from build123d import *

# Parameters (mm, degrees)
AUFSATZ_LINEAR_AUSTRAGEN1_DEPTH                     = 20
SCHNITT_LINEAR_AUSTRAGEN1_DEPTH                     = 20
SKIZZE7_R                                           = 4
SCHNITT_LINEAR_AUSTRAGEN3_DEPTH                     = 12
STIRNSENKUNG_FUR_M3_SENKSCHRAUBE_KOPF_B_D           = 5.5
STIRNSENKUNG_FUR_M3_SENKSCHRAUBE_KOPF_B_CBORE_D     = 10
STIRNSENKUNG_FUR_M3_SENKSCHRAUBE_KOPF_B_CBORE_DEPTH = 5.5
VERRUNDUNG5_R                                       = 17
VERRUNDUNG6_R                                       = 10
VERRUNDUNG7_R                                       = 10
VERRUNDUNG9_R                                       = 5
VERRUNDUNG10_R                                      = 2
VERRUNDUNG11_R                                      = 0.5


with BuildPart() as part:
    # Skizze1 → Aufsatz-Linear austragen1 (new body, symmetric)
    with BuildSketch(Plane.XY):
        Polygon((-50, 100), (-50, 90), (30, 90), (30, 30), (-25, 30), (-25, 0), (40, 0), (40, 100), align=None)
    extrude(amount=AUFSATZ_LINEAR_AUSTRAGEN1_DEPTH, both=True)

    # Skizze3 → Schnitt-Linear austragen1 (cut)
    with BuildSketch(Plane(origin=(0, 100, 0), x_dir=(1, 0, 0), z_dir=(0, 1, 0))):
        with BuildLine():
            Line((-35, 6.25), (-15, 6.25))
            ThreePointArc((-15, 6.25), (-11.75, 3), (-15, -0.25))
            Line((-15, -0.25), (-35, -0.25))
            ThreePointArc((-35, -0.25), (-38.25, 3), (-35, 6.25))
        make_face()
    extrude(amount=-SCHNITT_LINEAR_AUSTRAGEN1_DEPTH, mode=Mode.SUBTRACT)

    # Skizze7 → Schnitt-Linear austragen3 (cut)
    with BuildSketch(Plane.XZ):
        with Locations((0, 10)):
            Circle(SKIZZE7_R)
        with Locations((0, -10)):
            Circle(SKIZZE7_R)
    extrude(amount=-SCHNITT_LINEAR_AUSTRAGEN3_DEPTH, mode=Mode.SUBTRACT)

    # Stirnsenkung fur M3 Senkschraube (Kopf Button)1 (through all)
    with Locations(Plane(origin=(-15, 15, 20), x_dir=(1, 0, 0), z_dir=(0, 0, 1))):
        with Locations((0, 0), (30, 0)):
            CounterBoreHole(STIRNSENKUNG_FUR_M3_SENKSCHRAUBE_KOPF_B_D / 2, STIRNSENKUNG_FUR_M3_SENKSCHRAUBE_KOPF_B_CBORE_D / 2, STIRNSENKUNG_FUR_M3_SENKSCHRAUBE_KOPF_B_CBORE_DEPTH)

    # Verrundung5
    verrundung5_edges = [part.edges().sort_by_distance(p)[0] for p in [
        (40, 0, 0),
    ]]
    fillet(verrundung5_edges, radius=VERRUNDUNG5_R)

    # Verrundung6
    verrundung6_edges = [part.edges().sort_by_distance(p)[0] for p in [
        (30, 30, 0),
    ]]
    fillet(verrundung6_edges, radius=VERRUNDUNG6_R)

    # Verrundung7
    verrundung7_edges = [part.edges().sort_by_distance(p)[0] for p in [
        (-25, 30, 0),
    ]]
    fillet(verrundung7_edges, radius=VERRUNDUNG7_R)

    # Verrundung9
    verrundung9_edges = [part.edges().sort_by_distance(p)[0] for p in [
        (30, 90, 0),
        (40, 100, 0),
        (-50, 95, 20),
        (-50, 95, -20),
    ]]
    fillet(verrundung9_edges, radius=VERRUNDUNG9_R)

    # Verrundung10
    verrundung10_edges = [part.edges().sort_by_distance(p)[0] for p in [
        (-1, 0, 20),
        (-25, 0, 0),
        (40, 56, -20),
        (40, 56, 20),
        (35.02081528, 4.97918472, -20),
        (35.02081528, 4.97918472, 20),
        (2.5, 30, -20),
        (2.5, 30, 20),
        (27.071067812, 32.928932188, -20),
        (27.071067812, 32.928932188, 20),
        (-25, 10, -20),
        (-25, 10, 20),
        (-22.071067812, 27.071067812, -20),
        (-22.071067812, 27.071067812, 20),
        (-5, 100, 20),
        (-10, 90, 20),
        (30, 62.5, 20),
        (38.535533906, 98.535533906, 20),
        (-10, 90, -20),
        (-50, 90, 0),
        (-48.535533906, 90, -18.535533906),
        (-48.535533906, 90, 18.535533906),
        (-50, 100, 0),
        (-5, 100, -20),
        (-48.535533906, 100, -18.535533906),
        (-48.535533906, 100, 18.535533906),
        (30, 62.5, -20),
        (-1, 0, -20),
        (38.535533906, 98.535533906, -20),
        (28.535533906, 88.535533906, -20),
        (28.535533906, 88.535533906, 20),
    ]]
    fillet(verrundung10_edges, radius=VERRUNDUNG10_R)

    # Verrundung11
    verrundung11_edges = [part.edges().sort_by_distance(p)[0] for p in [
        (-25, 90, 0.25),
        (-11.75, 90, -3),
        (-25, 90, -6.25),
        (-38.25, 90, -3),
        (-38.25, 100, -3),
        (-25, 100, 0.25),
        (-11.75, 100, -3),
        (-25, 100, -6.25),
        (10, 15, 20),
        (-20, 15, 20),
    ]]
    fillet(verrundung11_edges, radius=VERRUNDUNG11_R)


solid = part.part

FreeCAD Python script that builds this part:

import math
import FreeCAD as App
import Part
import Sketcher

V = App.Vector
Q = App.Units.Quantity


def edges_at(feature, points):
    """Names of the edges that pass closest to the given points."""
    edges = feature.Shape.Edges
    near = lambda p: min(range(len(edges)), key=lambda i: edges[i].distToShape(Part.Vertex(*p))[0])
    return sorted({f"Edge{near(p) + 1}" for p in points})


def add_polygon(sketch, points):
    """Adds a closed chain of lines whose ends are joined by coincident constraints."""
    first, n = sketch.GeometryCount, len(points)
    for a, b in zip(points, points[1:] + points[:1]):
        sketch.addGeometry(Part.LineSegment(App.Vector(*a, 0), App.Vector(*b, 0)), False)
    for i in range(n):
        sketch.addConstraint(Sketcher.Constraint("Coincident", first + i, 2, first + (i + 1) % n, 1))

doc = App.newDocument("Part")
params = doc.addObject("Spreadsheet::Sheet", "Params")
for row, (alias, value) in enumerate([
    ("sketch1_width", "80 mm"),
    ("sketch1_width2", "55 mm"),
    ("sketch1_width3", "65 mm"),
    ("sketch1_height", "10 mm"),
    ("sketch1_height2", "60 mm"),
    ("pad1_length", "40 mm"),
    ("sketch2_width", "20 mm"),
    ("sketch2_radius", "3.25 mm"),
    ("pocket1_length", "20 mm"),
    ("sketch3_diameter", "8 mm"),
    ("pocket2_length", "12 mm"),
    ("sketch4_diameter", "5.5 mm"),
    ("hole_diameter", "5.5 mm"),
    ("hole_cbore_diameter", "10 mm"),
    ("hole_cbore_depth", "5.5 mm"),
    ("fillet_radius", "17 mm"),
    ("fillet2_radius", "10 mm"),
    ("fillet3_radius", "10 mm"),
    ("fillet4_radius", "5 mm"),
    ("fillet5_radius", "2 mm"),
    ("fillet6_radius", "0.5 mm"),
], start=1):
    params.set(f"A{row}", alias)
    params.set(f"B{row}", "=" + value)
    params.setAlias(f"B{row}", alias)

body = doc.addObject("PartDesign::Body", "Body")

# Sketch on XY plane
sketch1 = doc.addObject("Sketcher::SketchObject", "Sketch")
body.addObject(sketch1)
sketch1.AttachmentSupport = (doc.XY_Plane, [""])
sketch1.MapMode = "FlatFace"
add_polygon(sketch1, [(-50, 100), (-50, 90), (30, 90), (30, 30), (-25, 30), (-25, 0), (40, 0), (40, 100)])  # lines 0-7
sketch1.addConstraint([
    Sketcher.Constraint("Vertical", 0),
    Sketcher.Constraint("Horizontal", 1),
    Sketcher.Constraint("Vertical", 2),
    Sketcher.Constraint("Horizontal", 3),
    Sketcher.Constraint("Vertical", 4),
    Sketcher.Constraint("Horizontal", 5),
    Sketcher.Constraint("Vertical", 6),
    Sketcher.Constraint("Horizontal", 7),
    Sketcher.Constraint("PointOnObject", 4, 2, -1),
    Sketcher.Constraint("DistanceX", 1, 1, 1, 2, Q("80 mm")),
    Sketcher.Constraint("DistanceX", 3, 2, 3, 1, Q("55 mm")),
    Sketcher.Constraint("DistanceX", 5, 1, 5, 2, Q("65 mm")),
    Sketcher.Constraint("DistanceY", 0, 2, 0, 1, Q("10 mm")),
    Sketcher.Constraint("DistanceY", 2, 2, 2, 1, Q("60 mm")),
    Sketcher.Constraint("DistanceY", 4, 2, 4, 1, Q("30 mm")),
    Sketcher.Constraint("DistanceX", 0, 2, -1, 1, Q("50 mm")),
])
sketch1.setExpression("Constraints[17]", "Params.sketch1_width")
sketch1.setExpression("Constraints[18]", "Params.sketch1_width2")
sketch1.setExpression("Constraints[19]", "Params.sketch1_width3")
sketch1.setExpression("Constraints[20]", "Params.sketch1_height")
sketch1.setExpression("Constraints[21]", "Params.sketch1_height2")
pad1 = doc.addObject("PartDesign::Pad", "Pad")
body.addObject(pad1)
pad1.Profile = sketch1
pad1.setExpression("Length", "Params.pad1_length")
pad1.Midplane = True

# Sketch on XZ plane
sketch2 = doc.addObject("Sketcher::SketchObject", "Sketch001")
body.addObject(sketch2)
sketch2.AttachmentSupport = (doc.XZ_Plane, [""])
sketch2.MapMode = "FlatFace"
sketch2.AttachmentOffset = App.Placement(V(0, 0, -100), App.Rotation())
sketch2.addGeometry([
    Part.LineSegment(V(-15, -6.2, 0), V(-35, -6.2, 0)),
    Part.ArcOfCircle(Part.Circle(V(-35, -3, 0), V(0, 0, 1), 3.2), math.radians(90), math.radians(270)),
    Part.LineSegment(V(-35, 0.2, 0), V(-15, 0.2, 0)),
    Part.ArcOfCircle(Part.Circle(V(-15, -3, 0), V(0, 0, 1), 3.2), math.radians(-90), math.radians(90)),
], False)
sketch2.addConstraint([
    Sketcher.Constraint("Tangent", 0, 2, 1, 2),
    Sketcher.Constraint("Tangent", 1, 1, 2, 1),
    Sketcher.Constraint("Tangent", 2, 2, 3, 2),
    Sketcher.Constraint("Tangent", 3, 1, 0, 1),
    Sketcher.Constraint("Horizontal", 0),
    Sketcher.Constraint("Horizontal", 2),
    Sketcher.Constraint("DistanceX", 0, 2, 0, 1, Q("20 mm")),
    Sketcher.Constraint("Radius", 1, Q("3.25 mm")),
    Sketcher.Constraint("DistanceX", 1, 3, -1, 1, Q("35 mm")),
    Sketcher.Constraint("DistanceY", 1, 3, -1, 1, Q("3 mm")),
])
sketch2.setExpression("Constraints[6]", "Params.sketch2_width")
sketch2.setExpression("Constraints[7]", "Params.sketch2_radius")
pocket1 = doc.addObject("PartDesign::Pocket", "Pocket")
body.addObject(pocket1)
pocket1.Profile = sketch2
pocket1.setExpression("Length", "Params.pocket1_length")
pocket1.Reversed = True

# Sketch on XZ plane
sketch3 = doc.addObject("Sketcher::SketchObject", "Sketch002")
body.addObject(sketch3)
sketch3.AttachmentSupport = (doc.XZ_Plane, [""])
sketch3.MapMode = "FlatFace"
sketch3.addGeometry([
    Part.Circle(V(0, 10, 0), V(0, 0, 1), 4),
    Part.Circle(V(0, -10, 0), V(0, 0, 1), 4),
], False)
sketch3.addConstraint([
    Sketcher.Constraint("Equal", 0, 1),
    Sketcher.Constraint("Symmetric", 0, 3, 1, 3, -1, 1),
    Sketcher.Constraint("PointOnObject", 0, 3, -2),
    Sketcher.Constraint("Diameter", 0, Q("8 mm")),
    Sketcher.Constraint("DistanceY", -1, 1, 0, 3, Q("10 mm")),
])
sketch3.setExpression("Constraints[3]", "Params.sketch3_diameter")
pocket2 = doc.addObject("PartDesign::Pocket", "Pocket001")
body.addObject(pocket2)
pocket2.Profile = sketch3
pocket2.setExpression("Length", "Params.pocket2_length")

# Sketch on XY plane
sketch4 = doc.addObject("Sketcher::SketchObject", "Sketch003")
body.addObject(sketch4)
sketch4.AttachmentSupport = (doc.XY_Plane, [""])
sketch4.MapMode = "FlatFace"
sketch4.AttachmentOffset = App.Placement(V(0, 0, 20), App.Rotation())
sketch4.addGeometry([
    Part.Circle(V(-15, 15, 0), V(0, 0, 1), 2.8),
    Part.Circle(V(15, 15, 0), V(0, 0, 1), 2.8),
], False)
sketch4.addConstraint([
    Sketcher.Constraint("Equal", 0, 1),
    Sketcher.Constraint("Symmetric", 0, 3, 1, 3, -2),
    Sketcher.Constraint("Diameter", 0, Q("5.5 mm")),
    Sketcher.Constraint("DistanceX", 0, 3, -1, 1, Q("15 mm")),
    Sketcher.Constraint("DistanceY", -1, 1, 0, 3, Q("15 mm")),
])
sketch4.setExpression("Constraints[2]", "Params.sketch4_diameter")
doc.recompute()
hole = doc.addObject("PartDesign::Hole", "Hole")
body.addObject(hole)
hole.Profile = sketch4
hole.ThreadType = "None"
hole.setExpression("Diameter", "Params.hole_diameter")
hole.DepthType = "ThroughAll"
hole.HoleCutType = "Counterbore"
hole.setExpression("HoleCutDiameter", "Params.hole_cbore_diameter")
hole.setExpression("HoleCutDepth", "Params.hole_cbore_depth")
doc.recompute()

fillet = doc.addObject("PartDesign::Fillet", "Fillet")
body.addObject(fillet)
fillet.Base = (hole, edges_at(hole, [(40, 0, 0)]))
fillet.setExpression("Radius", "Params.fillet_radius")
doc.recompute()

fillet2 = doc.addObject("PartDesign::Fillet", "Fillet001")
body.addObject(fillet2)
fillet2.Base = (fillet, edges_at(fillet, [(30, 30, 0)]))
fillet2.setExpression("Radius", "Params.fillet2_radius")
doc.recompute()

fillet3 = doc.addObject("PartDesign::Fillet", "Fillet002")
body.addObject(fillet3)
fillet3.Base = (fillet2, edges_at(fillet2, [(-25, 30, 0)]))
fillet3.setExpression("Radius", "Params.fillet3_radius")
doc.recompute()

fillet4 = doc.addObject("PartDesign::Fillet", "Fillet003")
body.addObject(fillet4)
fillet4.Base = (fillet3, edges_at(fillet3, [
    (30, 90, 0),
    (40, 100, 0),
    (-50, 95, 20),
    (-50, 95, -20),
]))
fillet4.setExpression("Radius", "Params.fillet4_radius")
doc.recompute()

fillet5 = doc.addObject("PartDesign::Fillet", "Fillet004")
body.addObject(fillet5)
fillet5.Base = (fillet4, edges_at(fillet4, [
    (-1, 0, 20),
    (-25, 0, 0),
    (40, 56, -20),
    (40, 56, 20),
    (35.021, 4.979, -20),
    (35.021, 4.979, 20),
    (2.5, 30, -20),
    (2.5, 30, 20),
    (27.071, 32.929, -20),
    (27.071, 32.929, 20),
    (-25, 10, -20),
    (-25, 10, 20),
    (-22.071, 27.071, -20),
    (-22.071, 27.071, 20),
    (-5, 100, 20),
    (-10, 90, 20),
    (30, 62.5, 20),
    (38.536, 98.536, 20),
    (-10, 90, -20),
    (-50, 90, 0),
    (-48.536, 90, -18.536),
    (-48.536, 90, 18.536),
    (-50, 100, 0),
    (-5, 100, -20),
    (-48.536, 100, -18.536),
    (-48.536, 100, 18.536),
    (30, 62.5, -20),
    (-1, 0, -20),
    (38.536, 98.536, -20),
    (28.536, 88.536, -20),
    (28.536, 88.536, 20),
]))
fillet5.setExpression("Radius", "Params.fillet5_radius")
doc.recompute()

fillet6 = doc.addObject("PartDesign::Fillet", "Fillet005")
body.addObject(fillet6)
fillet6.Base = (fillet5, edges_at(fillet5, [
    (-25, 90, 0.25),
    (-11.75, 90, -3),
    (-25, 90, -6.25),
    (-38.25, 90, -3),
    (-38.25, 100, -3),
    (-25, 100, 0.25),
    (-11.75, 100, -3),
    (-25, 100, -6.25),
    (10, 15, 20),
    (-20, 15, 20),
]))
fillet6.setExpression("Radius", "Params.fillet6_radius")

doc.recompute()
